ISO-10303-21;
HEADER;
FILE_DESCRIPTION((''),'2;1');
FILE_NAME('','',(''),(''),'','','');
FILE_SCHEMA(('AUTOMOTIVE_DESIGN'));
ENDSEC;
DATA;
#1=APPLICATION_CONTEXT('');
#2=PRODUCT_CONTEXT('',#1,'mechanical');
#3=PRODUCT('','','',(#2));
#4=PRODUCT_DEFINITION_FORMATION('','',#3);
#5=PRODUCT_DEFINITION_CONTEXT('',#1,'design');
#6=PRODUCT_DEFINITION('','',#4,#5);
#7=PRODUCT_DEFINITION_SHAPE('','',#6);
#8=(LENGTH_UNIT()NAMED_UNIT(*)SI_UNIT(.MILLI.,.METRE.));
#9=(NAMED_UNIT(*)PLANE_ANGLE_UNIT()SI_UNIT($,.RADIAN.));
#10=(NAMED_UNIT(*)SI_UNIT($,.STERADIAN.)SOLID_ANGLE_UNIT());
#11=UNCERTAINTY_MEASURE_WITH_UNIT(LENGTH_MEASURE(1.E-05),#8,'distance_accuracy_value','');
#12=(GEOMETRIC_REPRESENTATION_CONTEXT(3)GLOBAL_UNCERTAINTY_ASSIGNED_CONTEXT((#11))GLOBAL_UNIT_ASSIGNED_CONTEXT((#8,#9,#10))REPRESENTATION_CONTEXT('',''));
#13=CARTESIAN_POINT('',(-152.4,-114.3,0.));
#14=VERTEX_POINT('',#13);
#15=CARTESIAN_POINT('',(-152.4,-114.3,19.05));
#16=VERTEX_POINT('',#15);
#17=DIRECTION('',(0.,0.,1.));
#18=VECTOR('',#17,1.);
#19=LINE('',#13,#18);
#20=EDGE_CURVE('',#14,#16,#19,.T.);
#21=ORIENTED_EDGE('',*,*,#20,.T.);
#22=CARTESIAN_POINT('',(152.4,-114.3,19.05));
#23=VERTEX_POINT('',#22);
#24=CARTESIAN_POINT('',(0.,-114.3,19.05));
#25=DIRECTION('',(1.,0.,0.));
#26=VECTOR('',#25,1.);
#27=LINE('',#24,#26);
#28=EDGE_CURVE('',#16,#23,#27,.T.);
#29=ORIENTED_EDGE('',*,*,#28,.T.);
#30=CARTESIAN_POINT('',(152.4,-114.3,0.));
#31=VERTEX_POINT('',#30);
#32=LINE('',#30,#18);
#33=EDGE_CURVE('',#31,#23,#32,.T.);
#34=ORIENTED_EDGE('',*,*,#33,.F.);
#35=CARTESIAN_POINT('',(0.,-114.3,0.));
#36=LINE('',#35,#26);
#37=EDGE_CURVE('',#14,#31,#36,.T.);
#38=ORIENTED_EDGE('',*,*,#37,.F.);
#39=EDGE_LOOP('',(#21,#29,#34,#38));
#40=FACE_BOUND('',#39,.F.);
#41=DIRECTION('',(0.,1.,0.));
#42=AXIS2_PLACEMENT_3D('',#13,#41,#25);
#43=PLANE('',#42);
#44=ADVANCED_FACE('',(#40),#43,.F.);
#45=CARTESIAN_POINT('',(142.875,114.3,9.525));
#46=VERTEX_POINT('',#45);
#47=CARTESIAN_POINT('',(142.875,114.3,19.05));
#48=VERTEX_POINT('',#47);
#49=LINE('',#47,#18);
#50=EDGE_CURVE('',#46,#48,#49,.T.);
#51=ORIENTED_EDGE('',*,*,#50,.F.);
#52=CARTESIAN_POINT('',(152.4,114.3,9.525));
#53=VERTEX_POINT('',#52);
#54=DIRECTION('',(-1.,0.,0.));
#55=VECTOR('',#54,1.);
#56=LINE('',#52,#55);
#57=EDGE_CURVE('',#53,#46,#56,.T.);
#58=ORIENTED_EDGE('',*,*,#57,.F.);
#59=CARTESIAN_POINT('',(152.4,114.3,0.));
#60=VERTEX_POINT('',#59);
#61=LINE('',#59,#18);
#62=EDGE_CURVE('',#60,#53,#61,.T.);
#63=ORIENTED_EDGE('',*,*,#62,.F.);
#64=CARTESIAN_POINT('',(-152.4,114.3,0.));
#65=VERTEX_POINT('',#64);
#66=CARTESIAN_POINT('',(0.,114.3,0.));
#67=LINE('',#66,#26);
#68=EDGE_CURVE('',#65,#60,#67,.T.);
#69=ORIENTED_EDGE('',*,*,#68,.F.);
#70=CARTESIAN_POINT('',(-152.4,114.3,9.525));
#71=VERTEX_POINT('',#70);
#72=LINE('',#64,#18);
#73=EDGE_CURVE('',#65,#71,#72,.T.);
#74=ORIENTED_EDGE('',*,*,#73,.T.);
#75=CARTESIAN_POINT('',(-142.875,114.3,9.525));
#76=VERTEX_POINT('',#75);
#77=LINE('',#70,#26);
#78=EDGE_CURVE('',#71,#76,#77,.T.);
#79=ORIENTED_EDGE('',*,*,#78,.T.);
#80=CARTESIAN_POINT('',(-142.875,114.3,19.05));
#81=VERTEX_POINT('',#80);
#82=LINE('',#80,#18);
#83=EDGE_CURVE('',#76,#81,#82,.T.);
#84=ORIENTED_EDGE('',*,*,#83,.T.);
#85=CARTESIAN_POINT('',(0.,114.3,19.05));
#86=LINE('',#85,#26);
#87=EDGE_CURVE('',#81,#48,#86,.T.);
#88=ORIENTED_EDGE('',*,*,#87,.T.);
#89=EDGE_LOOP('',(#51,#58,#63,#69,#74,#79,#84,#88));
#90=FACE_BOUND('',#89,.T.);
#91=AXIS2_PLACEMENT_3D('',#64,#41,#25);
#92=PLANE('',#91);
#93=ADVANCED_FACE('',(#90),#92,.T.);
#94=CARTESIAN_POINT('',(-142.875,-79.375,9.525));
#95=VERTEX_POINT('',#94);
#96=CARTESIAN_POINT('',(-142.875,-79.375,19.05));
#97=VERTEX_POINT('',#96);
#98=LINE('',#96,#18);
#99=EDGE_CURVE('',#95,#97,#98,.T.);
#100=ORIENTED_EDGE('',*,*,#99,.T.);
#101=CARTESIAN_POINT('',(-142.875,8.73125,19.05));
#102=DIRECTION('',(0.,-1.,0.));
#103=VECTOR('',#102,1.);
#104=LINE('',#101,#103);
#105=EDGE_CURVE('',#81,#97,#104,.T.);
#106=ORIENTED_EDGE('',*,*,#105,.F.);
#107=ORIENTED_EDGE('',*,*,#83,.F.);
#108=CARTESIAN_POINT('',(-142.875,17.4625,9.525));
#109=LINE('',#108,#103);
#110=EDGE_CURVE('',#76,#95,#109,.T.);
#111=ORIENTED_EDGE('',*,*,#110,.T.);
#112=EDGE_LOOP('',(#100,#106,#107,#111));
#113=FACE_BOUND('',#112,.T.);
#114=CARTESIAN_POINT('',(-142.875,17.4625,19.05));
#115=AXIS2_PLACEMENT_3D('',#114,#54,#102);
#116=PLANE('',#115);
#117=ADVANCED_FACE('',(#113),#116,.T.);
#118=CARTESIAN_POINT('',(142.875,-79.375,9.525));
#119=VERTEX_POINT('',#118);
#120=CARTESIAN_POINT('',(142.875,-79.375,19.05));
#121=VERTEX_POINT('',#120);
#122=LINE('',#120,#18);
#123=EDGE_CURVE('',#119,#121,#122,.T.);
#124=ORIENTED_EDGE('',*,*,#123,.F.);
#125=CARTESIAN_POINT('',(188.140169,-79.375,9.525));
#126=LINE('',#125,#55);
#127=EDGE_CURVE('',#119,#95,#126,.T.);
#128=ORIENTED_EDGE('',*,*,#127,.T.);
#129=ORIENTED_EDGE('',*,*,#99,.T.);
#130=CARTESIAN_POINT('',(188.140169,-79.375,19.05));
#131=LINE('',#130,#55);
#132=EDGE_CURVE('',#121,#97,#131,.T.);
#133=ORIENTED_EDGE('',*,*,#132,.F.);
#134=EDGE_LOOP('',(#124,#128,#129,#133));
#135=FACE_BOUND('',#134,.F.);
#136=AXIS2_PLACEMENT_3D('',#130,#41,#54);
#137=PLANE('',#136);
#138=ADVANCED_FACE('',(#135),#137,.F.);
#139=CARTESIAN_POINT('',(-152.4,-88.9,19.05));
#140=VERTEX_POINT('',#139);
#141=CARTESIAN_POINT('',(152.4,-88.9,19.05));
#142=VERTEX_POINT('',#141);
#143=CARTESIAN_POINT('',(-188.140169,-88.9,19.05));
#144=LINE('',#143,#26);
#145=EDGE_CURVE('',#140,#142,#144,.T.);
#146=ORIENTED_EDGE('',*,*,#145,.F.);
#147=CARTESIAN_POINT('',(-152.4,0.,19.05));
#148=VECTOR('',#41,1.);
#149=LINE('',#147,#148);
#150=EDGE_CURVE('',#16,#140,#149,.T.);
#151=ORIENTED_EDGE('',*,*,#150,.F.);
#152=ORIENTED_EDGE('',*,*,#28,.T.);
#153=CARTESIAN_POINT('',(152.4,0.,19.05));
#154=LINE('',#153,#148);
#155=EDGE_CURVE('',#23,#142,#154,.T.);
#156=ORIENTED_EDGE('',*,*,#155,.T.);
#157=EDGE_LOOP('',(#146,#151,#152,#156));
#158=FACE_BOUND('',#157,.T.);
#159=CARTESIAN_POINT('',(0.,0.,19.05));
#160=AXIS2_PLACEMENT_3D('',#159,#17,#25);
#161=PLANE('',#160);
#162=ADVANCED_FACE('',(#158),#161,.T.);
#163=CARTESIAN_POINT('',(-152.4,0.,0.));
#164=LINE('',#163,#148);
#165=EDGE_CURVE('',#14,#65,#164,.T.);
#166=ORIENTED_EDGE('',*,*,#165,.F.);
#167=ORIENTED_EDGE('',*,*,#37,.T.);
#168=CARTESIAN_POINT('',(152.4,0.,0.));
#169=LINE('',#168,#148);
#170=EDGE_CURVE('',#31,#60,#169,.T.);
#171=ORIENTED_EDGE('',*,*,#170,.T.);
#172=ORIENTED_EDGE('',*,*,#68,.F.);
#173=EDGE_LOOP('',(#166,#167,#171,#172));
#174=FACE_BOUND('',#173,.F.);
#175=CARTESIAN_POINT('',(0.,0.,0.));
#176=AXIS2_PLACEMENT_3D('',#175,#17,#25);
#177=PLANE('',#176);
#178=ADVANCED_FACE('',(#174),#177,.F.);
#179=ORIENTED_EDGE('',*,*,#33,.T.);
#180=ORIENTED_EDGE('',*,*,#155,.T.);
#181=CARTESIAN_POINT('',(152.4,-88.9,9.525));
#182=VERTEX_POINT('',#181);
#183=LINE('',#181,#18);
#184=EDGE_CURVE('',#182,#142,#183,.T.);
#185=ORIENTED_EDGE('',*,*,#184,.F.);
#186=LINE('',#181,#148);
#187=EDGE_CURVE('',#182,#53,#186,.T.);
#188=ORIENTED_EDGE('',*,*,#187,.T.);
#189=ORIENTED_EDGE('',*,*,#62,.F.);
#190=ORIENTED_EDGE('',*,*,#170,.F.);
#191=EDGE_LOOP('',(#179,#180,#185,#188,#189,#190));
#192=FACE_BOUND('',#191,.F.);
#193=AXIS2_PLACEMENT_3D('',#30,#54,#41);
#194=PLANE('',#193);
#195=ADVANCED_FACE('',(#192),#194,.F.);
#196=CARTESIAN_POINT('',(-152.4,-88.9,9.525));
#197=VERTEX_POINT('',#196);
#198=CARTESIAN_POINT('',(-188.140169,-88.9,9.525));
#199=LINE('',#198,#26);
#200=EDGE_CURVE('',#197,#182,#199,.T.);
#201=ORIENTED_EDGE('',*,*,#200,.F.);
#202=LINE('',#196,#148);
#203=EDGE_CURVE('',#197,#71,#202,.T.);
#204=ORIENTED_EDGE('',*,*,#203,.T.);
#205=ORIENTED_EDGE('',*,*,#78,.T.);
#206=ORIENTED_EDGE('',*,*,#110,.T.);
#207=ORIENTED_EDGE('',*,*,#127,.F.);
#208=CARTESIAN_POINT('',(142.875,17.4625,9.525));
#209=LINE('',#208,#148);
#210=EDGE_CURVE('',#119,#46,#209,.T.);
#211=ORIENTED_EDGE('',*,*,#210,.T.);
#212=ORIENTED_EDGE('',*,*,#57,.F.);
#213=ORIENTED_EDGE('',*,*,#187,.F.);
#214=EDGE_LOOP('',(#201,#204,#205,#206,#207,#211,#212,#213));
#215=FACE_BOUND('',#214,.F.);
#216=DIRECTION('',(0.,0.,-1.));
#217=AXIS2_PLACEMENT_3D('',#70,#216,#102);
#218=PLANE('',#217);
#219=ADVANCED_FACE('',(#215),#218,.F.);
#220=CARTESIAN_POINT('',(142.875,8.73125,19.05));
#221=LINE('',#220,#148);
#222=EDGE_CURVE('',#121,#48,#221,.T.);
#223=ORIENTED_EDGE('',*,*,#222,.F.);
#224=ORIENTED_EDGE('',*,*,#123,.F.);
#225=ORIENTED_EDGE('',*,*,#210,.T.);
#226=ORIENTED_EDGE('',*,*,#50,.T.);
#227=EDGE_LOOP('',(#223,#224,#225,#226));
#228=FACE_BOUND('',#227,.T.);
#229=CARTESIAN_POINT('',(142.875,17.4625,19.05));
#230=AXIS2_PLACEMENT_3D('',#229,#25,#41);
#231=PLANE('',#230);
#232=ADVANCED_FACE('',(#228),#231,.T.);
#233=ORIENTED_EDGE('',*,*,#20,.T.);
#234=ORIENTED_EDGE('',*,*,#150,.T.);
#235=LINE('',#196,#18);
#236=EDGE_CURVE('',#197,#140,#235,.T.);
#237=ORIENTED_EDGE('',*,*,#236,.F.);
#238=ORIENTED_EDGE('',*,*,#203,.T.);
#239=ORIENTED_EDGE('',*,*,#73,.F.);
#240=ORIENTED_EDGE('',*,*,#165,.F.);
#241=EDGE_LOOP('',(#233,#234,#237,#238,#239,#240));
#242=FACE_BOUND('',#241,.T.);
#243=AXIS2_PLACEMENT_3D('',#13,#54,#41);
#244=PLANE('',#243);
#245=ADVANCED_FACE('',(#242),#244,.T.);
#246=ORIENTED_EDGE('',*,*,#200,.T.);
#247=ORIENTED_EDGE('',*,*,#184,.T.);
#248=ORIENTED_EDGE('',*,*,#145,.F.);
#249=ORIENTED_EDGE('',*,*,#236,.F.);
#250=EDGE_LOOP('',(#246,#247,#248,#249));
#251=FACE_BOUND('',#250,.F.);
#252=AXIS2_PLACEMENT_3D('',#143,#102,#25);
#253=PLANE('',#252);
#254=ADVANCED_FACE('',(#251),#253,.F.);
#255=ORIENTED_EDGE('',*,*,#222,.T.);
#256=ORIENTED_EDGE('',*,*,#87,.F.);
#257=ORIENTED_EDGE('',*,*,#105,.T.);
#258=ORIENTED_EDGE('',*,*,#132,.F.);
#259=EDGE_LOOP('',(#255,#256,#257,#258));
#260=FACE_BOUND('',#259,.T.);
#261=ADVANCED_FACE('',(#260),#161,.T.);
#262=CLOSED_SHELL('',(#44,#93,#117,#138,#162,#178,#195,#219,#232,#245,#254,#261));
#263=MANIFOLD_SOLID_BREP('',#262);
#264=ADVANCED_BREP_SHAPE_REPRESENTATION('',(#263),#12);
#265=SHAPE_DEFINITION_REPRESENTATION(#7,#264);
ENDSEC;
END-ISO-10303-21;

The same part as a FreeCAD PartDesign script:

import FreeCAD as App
import Part
import Sketcher
from FreeCAD import Vector
Q = App.Units.Quantity


def add_polygon(sketch, points):
    """Adds a closed chain of lines whose ends are joined by coincident constraints."""
    first, n = sketch.GeometryCount, len(points)
    for a, b in zip(points, points[1:] + points[:1]):
        sketch.addGeometry(Part.LineSegment(App.Vector(*a, 0), App.Vector(*b, 0)), False)
    for i in range(n):
        sketch.addConstraint(Sketcher.Constraint("Coincident", first + i, 2, first + (i + 1) % n, 1))

doc = App.newDocument("Part")
body = doc.addObject("PartDesign::Body", "Body")

sketch1 = body.newObject("Sketcher::SketchObject", "Sketch")
sketch1.AttachmentSupport = (doc.getObject("XY_Plane"), [""])
sketch1.MapMode = "FlatFace"
add_polygon(sketch1, [(-152, 114), (-152, -114), (152, -114), (152, 114)])
sketch1.addConstraint(Sketcher.Constraint("Vertical", 0))
sketch1.addConstraint(Sketcher.Constraint("Horizontal", 1))
sketch1.addConstraint(Sketcher.Constraint("Vertical", 2))
sketch1.addConstraint(Sketcher.Constraint("Horizontal", 3))
sketch1.addConstraint(Sketcher.Constraint("Symmetric", 0, 2, 2, 2, -1, 1))
sketch1.addConstraint(Sketcher.Constraint("DistanceX", 1, 1, 1, 2, Q("12 in")))
sketch1.addConstraint(Sketcher.Constraint("DistanceY", 0, 2, 0, 1, Q("9 in")))
pad1 = body.newObject("PartDesign::Pad", "Pad")
pad1.Profile = sketch1
pad1.Length = Q("0.75 in")

sketch2 = body.newObject("Sketcher::SketchObject", "Sketch001")
sketch2.AttachmentSupport = (doc.getObject("XY_Plane"), [""])
sketch2.MapMode = "FlatFace"
sketch2.AttachmentOffset = App.Placement(Vector(0, 0, 0.75 * 25.4), App.Rotation())
add_polygon(sketch2, [(188, -89), (188, -79), (-188, -79), (-188, -89)])
sketch2.addConstraint(Sketcher.Constraint("Vertical", 0))
sketch2.addConstraint(Sketcher.Constraint("Horizontal", 1))
sketch2.addConstraint(Sketcher.Constraint("Vertical", 2))
sketch2.addConstraint(Sketcher.Constraint("Horizontal", 3))
sketch2.addConstraint(Sketcher.Constraint("DistanceY", 2, 2, -1, 1, Q("3.5 in")))
sketch2.addConstraint(Sketcher.Constraint("DistanceY", 0, 1, 0, 2, Q("0.375 in")))
sketch2.addConstraint(Sketcher.Constraint("DistanceX", 1, 2, 1, 1, Q("376.280338 mm")))
sketch2.addConstraint(Sketcher.Constraint("DistanceX", -1, 1, 0, 2, Q("188.140169 mm")))
pocket1 = body.newObject("PartDesign::Pocket", "Pocket")
pocket1.Profile = sketch2
pocket1.Length = Q("0.375 in")

sketch3 = body.newObject("Sketcher::SketchObject", "Sketch002")
sketch3.AttachmentSupport = (doc.getObject("YZ_Plane"), [""])
sketch3.MapMode = "FlatFace"
sketch3.AttachmentOffset = App.Placement(Vector(0, 0, -6 * 25.4), App.Rotation())
add_polygon(sketch3, [(114, 29), (114, 10), (-79, 10), (-79, 29)])
sketch3.addConstraint(Sketcher.Constraint("Vertical", 0))
sketch3.addConstraint(Sketcher.Constraint("Horizontal", 1))
sketch3.addConstraint(Sketcher.Constraint("Vertical", 2))
sketch3.addConstraint(Sketcher.Constraint("Horizontal", 3))
sketch3.addConstraint(Sketcher.Constraint("DistanceY", 0, 2, 0, 1, Q("0.75 in")))
sketch3.addConstraint(Sketcher.Constraint("DistanceX", -1, 1, 0, 2, Q("4.5 in")))
sketch3.addConstraint(Sketcher.Constraint("DistanceX", 1, 2, 1, 1, Q("7.625 in")))
sketch3.addConstraint(Sketcher.Constraint("DistanceY", -1, 1, 0, 2, Q("0.375 in")))
pocket2 = body.newObject("PartDesign::Pocket", "Pocket001")
pocket2.Profile = sketch3
pocket2.Length = Q("0.375 in")
pocket2.Reversed = True

sketch4 = body.newObject("Sketcher::SketchObject", "Sketch003")
sketch4.AttachmentSupport = (doc.getObject("YZ_Plane"), [""])
sketch4.MapMode = "FlatFace"
sketch4.AttachmentOffset = App.Placement(Vector(0, 0, 6 * 25.4), App.Rotation())
add_polygon(sketch4, [(-79, 29), (-79, 10), (114, 10), (114, 29)])
sketch4.addConstraint(Sketcher.Constraint("Vertical", 0))
sketch4.addConstraint(Sketcher.Constraint("Horizontal", 1))
sketch4.addConstraint(Sketcher.Constraint("Vertical", 2))
sketch4.addConstraint(Sketcher.Constraint("Horizontal", 3))
sketch4.addConstraint(Sketcher.Constraint("DistanceY", 0, 2, 0, 1, Q("0.75 in")))
sketch4.addConstraint(Sketcher.Constraint("DistanceX", -1, 1, 1, 2, Q("4.5 in")))
sketch4.addConstraint(Sketcher.Constraint("DistanceX", 1, 1, 1, 2, Q("7.625 in")))
sketch4.addConstraint(Sketcher.Constraint("DistanceY", -1, 1, 0, 2, Q("0.375 in")))
pocket3 = body.newObject("PartDesign::Pocket", "Pocket002")
pocket3.Profile = sketch4
pocket3.Length = Q("0.375 in")

doc.recompute()
